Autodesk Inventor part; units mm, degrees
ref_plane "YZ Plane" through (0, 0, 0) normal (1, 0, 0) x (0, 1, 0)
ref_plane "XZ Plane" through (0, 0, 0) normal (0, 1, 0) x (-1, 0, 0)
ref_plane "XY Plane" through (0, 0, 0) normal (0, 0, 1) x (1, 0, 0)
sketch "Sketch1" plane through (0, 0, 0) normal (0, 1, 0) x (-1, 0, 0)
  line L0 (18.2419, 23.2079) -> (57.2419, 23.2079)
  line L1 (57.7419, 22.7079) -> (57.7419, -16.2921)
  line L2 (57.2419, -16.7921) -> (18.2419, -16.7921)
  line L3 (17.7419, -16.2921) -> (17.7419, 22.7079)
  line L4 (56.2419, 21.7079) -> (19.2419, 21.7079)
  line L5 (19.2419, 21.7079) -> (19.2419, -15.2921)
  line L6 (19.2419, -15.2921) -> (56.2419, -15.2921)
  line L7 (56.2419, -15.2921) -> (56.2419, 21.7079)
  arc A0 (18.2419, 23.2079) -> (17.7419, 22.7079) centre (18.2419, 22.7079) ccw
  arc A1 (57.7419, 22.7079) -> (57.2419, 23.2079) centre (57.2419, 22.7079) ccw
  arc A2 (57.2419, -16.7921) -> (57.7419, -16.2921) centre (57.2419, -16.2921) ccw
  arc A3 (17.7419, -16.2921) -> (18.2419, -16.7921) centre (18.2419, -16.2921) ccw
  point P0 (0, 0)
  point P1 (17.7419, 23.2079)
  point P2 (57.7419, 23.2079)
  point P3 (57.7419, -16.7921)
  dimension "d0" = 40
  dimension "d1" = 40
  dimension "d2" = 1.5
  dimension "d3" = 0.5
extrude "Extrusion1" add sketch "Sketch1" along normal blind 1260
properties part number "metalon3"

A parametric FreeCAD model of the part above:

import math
import FreeCAD as App
import Part
import Sketcher

V = App.Vector


def add_polygon(sketch, points):
    """Adds a closed chain of lines whose ends are joined by coincident constraints."""
    first, n = sketch.GeometryCount, len(points)
    for a, b in zip(points, points[1:] + points[:1]):
        sketch.addGeometry(Part.LineSegment(App.Vector(*a, 0), App.Vector(*b, 0)), False)
    for i in range(n):
        sketch.addConstraint(Sketcher.Constraint("Coincident", first + i, 2, first + (i + 1) % n, 1))

doc = App.newDocument("Part")
params = doc.addObject("Spreadsheet::Sheet", "Params")
for row, (alias, value) in enumerate([
    ("sketch1_radius", "0.5 mm"),
    ("sketch1_width", "39 mm"),
    ("pad1_length", "1260 mm"),
], start=1):
    params.set(f"A{row}", alias)
    params.set(f"B{row}", "=" + value)
    params.setAlias(f"B{row}", alias)

body = doc.addObject("PartDesign::Body", "Body")

# Sketch on XZ plane
sketch1 = doc.addObject("Sketcher::SketchObject", "Sketch")
body.addObject(sketch1)
sketch1.AttachmentSupport = (doc.XZ_Plane, [""])
sketch1.MapMode = "FlatFace"
sketch1.addGeometry(Part.LineSegment(V(-57.2419, 23.2079, 0), V(-18.2419, 23.2079, 0)), False)  # 0
sketch1.addGeometry(Part.ArcOfCircle(Part.Circle(V(-18.2419, 22.7079, 0), V(0, 0, 1), 0.5), math.radians(0), math.radians(90)), False)  # 1
sketch1.addGeometry(Part.LineSegment(V(-17.7419, 22.7079, 0), V(-17.7419, -16.2921, 0)), False)  # 2
sketch1.addGeometry(Part.ArcOfCircle(Part.Circle(V(-18.2419, -16.2921, 0), V(0, 0, 1), 0.5), math.radians(-90), math.radians(0)), False)  # 3
sketch1.addGeometry(Part.LineSegment(V(-18.2419, -16.7921, 0), V(-57.2419, -16.7921, 0)), False)  # 4
sketch1.addGeometry(Part.ArcOfCircle(Part.Circle(V(-57.2419, -16.2921, 0), V(0, 0, 1), 0.5), math.radians(180), math.radians(270)), False)  # 5
sketch1.addGeometry(Part.LineSegment(V(-57.7419, -16.2921, 0), V(-57.7419, 22.7079, 0)), False)  # 6
sketch1.addGeometry(Part.ArcOfCircle(Part.Circle(V(-57.2419, 22.7079, 0), V(0, 0, 1), 0.5), math.radians(90), math.radians(180)), False)  # 7
add_polygon(sketch1, [(-19.2419, 21.7079), (-56.2419, 21.7079), (-56.2419, -15.2921), (-19.2419, -15.2921)])  # lines 8-11
sketch1.addConstraint([
    Sketcher.Constraint("Tangent", 0, 2, 1, 2),
    Sketcher.Constraint("Tangent", 1, 1, 2, 1),
    Sketcher.Constraint("Tangent", 2, 2, 3, 2),
    Sketcher.Constraint("Tangent", 3, 1, 4, 1),
    Sketcher.Constraint("Tangent", 4, 2, 5, 2),
    Sketcher.Constraint("Tangent", 5, 1, 6, 1),
    Sketcher.Constraint("Tangent", 6, 2, 7, 2),
    Sketcher.Constraint("Tangent", 7, 1, 0, 1),
    Sketcher.Constraint("Horizontal", 0),
    Sketcher.Constraint("Vertical", 2),
    Sketcher.Constraint("Horizontal", 4),
    Sketcher.Constraint("Vertical", 6),
    Sketcher.Constraint("Horizontal", 8),
    Sketcher.Constraint("Vertical", 9),
    Sketcher.Constraint("Horizontal", 10),
    Sketcher.Constraint("Vertical", 11),
    Sketcher.Constraint("Equal", 1, 3),
    Sketcher.Constraint("Equal", 3, 5),
    Sketcher.Constraint("Equal", 5, 7),
    Sketcher.Constraint("Equal", 4, 2),
    Sketcher.Constraint("Equal", 10, 9),
    Sketcher.Constraint("Radius", 1, 0.5),
    Sketcher.Constraint("DistanceX", 6, 2, 8, 2, 1.5),
    Sketcher.Constraint("DistanceY", 8, 2, 7, 1, 1.5),
    Sketcher.Constraint("DistanceY", 4, 2, 9, 2, 1.5),
    Sketcher.Constraint("DistanceX", 0, 1, 0, 2, 39.0),
    Sketcher.Constraint("DistanceX", 1, 3, -1, 1, 18.242),
    Sketcher.Constraint("DistanceY", -1, 1, 1, 3, 22.708),
])
sketch1.setExpression("Constraints[25]", "Params.sketch1_radius")
sketch1.setExpression("Constraints[29]", "Params.sketch1_width")
pad1 = doc.addObject("PartDesign::Pad", "Pad")
body.addObject(pad1)
pad1.Profile = sketch1
pad1.setExpression("Length", "Params.pad1_length")
pad1.Reversed = True

doc.recompute()
